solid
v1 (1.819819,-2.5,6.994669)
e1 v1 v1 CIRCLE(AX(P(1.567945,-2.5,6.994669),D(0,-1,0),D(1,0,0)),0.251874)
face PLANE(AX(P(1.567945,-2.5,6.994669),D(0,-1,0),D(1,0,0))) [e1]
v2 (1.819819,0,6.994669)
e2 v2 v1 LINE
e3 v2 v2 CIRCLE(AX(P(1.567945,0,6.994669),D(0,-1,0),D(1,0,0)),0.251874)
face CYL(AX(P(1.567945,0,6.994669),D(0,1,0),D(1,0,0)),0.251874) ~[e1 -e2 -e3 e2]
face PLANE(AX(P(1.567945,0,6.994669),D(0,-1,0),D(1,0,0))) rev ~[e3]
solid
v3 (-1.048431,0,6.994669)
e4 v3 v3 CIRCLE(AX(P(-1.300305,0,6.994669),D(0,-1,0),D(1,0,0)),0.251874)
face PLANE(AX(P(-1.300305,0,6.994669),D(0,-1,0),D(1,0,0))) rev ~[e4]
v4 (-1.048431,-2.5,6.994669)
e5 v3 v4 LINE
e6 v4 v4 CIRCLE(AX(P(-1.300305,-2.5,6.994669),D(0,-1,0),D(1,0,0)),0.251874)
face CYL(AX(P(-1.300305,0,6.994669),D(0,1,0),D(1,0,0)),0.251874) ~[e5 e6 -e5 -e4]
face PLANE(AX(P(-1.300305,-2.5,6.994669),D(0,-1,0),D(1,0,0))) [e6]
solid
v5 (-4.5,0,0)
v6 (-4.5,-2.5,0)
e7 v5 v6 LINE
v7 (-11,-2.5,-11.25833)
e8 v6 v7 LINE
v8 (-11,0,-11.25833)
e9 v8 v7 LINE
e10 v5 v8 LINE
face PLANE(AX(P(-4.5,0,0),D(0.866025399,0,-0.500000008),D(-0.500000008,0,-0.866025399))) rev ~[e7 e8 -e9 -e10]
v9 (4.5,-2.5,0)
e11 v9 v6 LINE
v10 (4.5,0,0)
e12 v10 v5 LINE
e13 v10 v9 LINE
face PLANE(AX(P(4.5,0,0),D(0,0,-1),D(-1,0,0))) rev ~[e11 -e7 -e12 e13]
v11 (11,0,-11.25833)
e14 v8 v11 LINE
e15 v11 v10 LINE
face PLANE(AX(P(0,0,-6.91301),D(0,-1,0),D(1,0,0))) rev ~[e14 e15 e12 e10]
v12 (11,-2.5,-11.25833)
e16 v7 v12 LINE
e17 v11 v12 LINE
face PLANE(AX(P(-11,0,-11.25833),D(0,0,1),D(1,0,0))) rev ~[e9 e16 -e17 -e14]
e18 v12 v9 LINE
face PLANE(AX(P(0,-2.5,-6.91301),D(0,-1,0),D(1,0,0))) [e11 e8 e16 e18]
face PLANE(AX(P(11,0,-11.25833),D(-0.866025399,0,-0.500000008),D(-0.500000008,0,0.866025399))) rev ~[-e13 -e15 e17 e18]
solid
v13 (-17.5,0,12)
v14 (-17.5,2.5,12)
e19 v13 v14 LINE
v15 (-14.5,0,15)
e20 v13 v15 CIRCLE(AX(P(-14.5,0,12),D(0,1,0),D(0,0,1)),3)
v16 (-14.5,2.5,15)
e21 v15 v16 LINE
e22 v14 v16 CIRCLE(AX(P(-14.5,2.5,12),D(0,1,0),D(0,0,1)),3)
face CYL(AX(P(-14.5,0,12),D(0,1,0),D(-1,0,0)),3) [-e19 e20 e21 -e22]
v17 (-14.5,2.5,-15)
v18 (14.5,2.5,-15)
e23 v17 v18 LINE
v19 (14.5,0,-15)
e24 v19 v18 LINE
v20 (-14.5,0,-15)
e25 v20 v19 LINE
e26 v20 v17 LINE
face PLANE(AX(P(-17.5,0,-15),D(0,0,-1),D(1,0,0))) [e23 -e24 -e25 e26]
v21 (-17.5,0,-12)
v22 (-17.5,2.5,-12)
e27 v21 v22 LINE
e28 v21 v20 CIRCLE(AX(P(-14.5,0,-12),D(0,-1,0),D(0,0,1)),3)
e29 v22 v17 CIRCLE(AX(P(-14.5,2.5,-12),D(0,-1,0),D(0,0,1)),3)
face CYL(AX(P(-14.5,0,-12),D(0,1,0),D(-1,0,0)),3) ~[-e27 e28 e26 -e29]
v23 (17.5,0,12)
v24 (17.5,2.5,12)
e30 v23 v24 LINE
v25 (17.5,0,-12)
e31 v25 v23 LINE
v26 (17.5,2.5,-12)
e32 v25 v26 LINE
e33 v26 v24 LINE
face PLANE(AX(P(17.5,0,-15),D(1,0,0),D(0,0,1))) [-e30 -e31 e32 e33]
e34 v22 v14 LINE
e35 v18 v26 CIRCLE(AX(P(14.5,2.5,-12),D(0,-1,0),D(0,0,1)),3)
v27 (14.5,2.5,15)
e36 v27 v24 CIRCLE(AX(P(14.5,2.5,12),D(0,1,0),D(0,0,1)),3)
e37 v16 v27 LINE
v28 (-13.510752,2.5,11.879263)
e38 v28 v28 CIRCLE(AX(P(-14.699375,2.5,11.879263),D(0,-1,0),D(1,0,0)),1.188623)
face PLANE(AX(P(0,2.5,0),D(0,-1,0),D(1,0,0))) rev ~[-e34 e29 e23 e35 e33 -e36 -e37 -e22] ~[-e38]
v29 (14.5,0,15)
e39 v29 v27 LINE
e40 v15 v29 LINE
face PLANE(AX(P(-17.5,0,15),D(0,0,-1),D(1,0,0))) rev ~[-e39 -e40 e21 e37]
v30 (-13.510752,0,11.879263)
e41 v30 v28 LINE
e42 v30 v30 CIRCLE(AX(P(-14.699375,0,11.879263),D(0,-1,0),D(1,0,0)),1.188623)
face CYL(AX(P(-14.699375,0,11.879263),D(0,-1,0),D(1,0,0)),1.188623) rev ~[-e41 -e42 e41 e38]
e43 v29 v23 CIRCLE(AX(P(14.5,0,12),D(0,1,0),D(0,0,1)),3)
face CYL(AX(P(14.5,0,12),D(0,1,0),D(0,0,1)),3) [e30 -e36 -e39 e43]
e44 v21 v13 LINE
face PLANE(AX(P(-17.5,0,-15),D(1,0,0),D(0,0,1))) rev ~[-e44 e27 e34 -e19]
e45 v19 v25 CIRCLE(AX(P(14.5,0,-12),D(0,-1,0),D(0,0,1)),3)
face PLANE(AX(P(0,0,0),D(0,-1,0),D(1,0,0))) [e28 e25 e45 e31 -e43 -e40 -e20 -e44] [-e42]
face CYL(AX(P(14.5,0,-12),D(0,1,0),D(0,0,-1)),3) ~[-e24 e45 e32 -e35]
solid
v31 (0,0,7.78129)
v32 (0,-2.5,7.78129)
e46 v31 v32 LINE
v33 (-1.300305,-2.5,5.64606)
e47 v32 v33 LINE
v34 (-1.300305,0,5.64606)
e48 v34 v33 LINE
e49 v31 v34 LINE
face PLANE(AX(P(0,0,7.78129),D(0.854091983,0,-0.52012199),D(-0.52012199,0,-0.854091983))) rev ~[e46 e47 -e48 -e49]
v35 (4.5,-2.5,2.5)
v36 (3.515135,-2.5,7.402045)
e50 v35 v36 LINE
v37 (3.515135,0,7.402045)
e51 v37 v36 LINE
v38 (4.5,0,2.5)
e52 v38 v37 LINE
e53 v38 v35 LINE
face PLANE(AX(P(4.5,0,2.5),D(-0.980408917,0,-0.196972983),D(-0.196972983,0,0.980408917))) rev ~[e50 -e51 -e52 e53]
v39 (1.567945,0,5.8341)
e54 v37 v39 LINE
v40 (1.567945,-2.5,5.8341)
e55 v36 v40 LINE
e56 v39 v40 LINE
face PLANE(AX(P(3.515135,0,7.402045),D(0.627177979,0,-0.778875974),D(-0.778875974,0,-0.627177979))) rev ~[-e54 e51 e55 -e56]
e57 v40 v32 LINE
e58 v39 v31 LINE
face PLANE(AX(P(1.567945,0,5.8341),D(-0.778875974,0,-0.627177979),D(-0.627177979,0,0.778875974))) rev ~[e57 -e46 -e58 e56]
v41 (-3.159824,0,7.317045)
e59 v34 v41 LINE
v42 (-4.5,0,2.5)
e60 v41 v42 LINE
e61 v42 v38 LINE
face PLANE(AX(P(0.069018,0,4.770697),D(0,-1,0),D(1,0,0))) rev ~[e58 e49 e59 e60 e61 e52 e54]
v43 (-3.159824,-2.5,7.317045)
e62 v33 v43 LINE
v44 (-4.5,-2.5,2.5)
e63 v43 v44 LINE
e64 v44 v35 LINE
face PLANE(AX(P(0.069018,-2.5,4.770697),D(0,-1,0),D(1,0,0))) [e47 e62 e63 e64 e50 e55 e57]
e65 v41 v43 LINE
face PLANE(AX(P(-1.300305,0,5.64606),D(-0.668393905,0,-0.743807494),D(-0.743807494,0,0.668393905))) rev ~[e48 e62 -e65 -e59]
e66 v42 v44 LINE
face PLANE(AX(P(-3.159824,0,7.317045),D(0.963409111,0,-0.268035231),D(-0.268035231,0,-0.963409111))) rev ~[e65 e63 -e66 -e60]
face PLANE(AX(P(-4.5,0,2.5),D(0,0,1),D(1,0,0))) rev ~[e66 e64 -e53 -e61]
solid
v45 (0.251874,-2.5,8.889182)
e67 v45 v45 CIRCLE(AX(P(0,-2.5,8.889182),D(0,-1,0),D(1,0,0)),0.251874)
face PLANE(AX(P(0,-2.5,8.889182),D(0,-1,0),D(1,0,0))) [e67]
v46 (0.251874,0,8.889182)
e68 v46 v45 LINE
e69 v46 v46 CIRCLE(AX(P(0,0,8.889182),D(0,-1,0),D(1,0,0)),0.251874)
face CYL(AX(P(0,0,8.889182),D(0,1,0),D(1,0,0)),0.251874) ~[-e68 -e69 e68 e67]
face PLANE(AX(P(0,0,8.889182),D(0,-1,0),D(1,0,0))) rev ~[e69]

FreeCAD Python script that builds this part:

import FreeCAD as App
import Part
import Sketcher
Q = App.Units.Quantity


def edges_at(feature, points):
    """Names of the edges that pass closest to the given points."""
    edges = feature.Shape.Edges
    near = lambda p: min(range(len(edges)), key=lambda i: edges[i].distToShape(Part.Vertex(*p))[0])
    return sorted({f"Edge{near(p) + 1}" for p in points})


def add_polygon(sketch, points):
    """Adds a closed chain of lines whose ends are joined by coincident constraints."""
    first, n = sketch.GeometryCount, len(points)
    for a, b in zip(points, points[1:] + points[:1]):
        sketch.addGeometry(Part.LineSegment(App.Vector(*a, 0), App.Vector(*b, 0)), False)
    for i in range(n):
        sketch.addConstraint(Sketcher.Constraint("Coincident", first + i, 2, first + (i + 1) % n, 1))

doc = App.newDocument("Part")
body = doc.addObject("PartDesign::Body", "Body")

# Sketch on XZ plane
sketch1 = doc.addObject("Sketcher::SketchObject", "Sketch")
body.addObject(sketch1)
sketch1.AttachmentSupport = (doc.XZ_Plane, [""])
sketch1.MapMode = "FlatFace"
add_polygon(sketch1, [(-17.5, 15), (-17.5, -15), (17.5, -15), (17.5, 15)])  # lines 0-3
sketch1.addGeometry(Part.Circle(App.Vector(-14.7, 11.9, 0), App.Vector(0, 0, 1), 1.2), False)  # 4
sketch1.addConstraint([
    Sketcher.Constraint("Vertical", 0),
    Sketcher.Constraint("Horizontal", 1),
    Sketcher.Constraint("Vertical", 2),
    Sketcher.Constraint("Horizontal", 3),
    Sketcher.Constraint("Symmetric", 0, 2, 2, 2, -1, 1),
    Sketcher.Constraint("DistanceX", 1, 1, 1, 2, 35.0),
    Sketcher.Constraint("DistanceY", 0, 2, 0, 1, 30.0),
    Sketcher.Constraint("Diameter", 4, 2.377246),
    Sketcher.Constraint("DistanceX", 4, 3, -1, 1, 14.699375),
    Sketcher.Constraint("DistanceY", -1, 1, 4, 3, 11.879263),
])
pad1 = doc.addObject("PartDesign::Pad", "Pad")
body.addObject(pad1)
pad1.Profile = sketch1
pad1.Length = 2.5
pad1.Reversed = True
doc.recompute()

fillet = doc.addObject("PartDesign::Fillet", "Fillet")
body.addObject(fillet)
fillet.Base = (pad1, edges_at(pad1, [
    (17.5, 1.25, 15),
    (-17.5, 1.25, 15),
    (-17.5, 1.25, -15),
    (17.5, 1.25, -15),
]))
fillet.Radius = 3
body2 = doc.addObject("PartDesign::Body", "Body001")
body2.AllowCompound = True

# Sketch on XZ plane
sketch2 = doc.addObject("Sketcher::SketchObject", "Sketch001")
body2.addObject(sketch2)
sketch2.AttachmentSupport = (doc.getObject("XZ_Plane001"), [""])
sketch2.MapMode = "FlatFace"
add_polygon(sketch2, [(-4.5, 0), (-11, -11.26), (11, -11.26), (4.5, 0)])  # lines 0-3
add_polygon(sketch2, [(-4.5, 2.5), (4.5, 2.5), (3.52, 7.4), (1.57, 5.83), (0, 7.78), (-1.3, 5.65), (-3.16, 7.32)])  # lines 4-10
sketch2.addGeometry(Part.Circle(App.Vector(0, 8.89, 0), App.Vector(0, 0, 1), 0.25), False)  # 11
sketch2.addGeometry(Part.Circle(App.Vector(-1.3, 6.99, 0), App.Vector(0, 0, 1), 0.25), False)  # 12
sketch2.addGeometry(Part.Circle(App.Vector(1.57, 6.99, 0), App.Vector(0, 0, 1), 0.25), False)  # 13
sketch2.addConstraint([
    Sketcher.Constraint("Horizontal", 1),
    Sketcher.Constraint("Horizontal", 3),
    Sketcher.Constraint("Horizontal", 4),
    Sketcher.Constraint("Equal", 11, 12),
    Sketcher.Constraint("Equal", 12, 13),
    Sketcher.Constraint("Symmetric", 2, 2, 3, 2, -1, 1),
    Sketcher.Constraint("PointOnObject", 11, 3, -2),
    Sketcher.Constraint("PointOnObject", 7, 2, -2),
    Sketcher.Constraint("Perpendicular", 6, 7),
    Sketcher.Constraint("Horizontal", 12, 3, 13, 3),
    Sketcher.Constraint("Vertical", 2, 2, 4, 2),
    Sketcher.Constraint("Vertical", 13, 3, 6, 2),
    Sketcher.Constraint("Vertical", 12, 3, 8, 2),
    Sketcher.Constraint("Vertical", 3, 2, 10, 2),
    Sketcher.Constraint("Equal", 0, 2),
    Sketcher.Constraint("Equal", 6, 7),
    Sketcher.Constraint("Equal", 7, 8),
    Sketcher.Constraint("Equal", 8, 9),
    Sketcher.Constraint("Equal", 5, 10),
    Sketcher.Constraint("DistanceX", 1, 1, 1, 2, 22.0),
    Sketcher.Constraint("DistanceX", 3, 2, 3, 1, 9.0),
    Sketcher.Constraint("Angle", 0, Q("-120.000001 deg")),
    Sketcher.Constraint("Distance", 5, 5.0),
    Sketcher.Constraint("Distance", 6, 2.5),
    Sketcher.Constraint("DistanceY", -1, 1, 4, 2, 2.5),
    Sketcher.Constraint("Angle", 5, Q("101.360003 deg")),
    Sketcher.Constraint("Diameter", 11, 0.503748),
    Sketcher.Constraint("DistanceY", 0, 2, 12, 3, 18.252999),
    Sketcher.Constraint("DistanceY", -1, 1, 8, 2, 5.64606),
    Sketcher.Constraint("DistanceY", 0, 2, 11, 3, 20.147512),
])
pad2 = doc.addObject("PartDesign::Pad", "Pad001")
body2.addObject(pad2)
pad2.Profile = sketch2
pad2.Length = 2.5

doc.recompute()
